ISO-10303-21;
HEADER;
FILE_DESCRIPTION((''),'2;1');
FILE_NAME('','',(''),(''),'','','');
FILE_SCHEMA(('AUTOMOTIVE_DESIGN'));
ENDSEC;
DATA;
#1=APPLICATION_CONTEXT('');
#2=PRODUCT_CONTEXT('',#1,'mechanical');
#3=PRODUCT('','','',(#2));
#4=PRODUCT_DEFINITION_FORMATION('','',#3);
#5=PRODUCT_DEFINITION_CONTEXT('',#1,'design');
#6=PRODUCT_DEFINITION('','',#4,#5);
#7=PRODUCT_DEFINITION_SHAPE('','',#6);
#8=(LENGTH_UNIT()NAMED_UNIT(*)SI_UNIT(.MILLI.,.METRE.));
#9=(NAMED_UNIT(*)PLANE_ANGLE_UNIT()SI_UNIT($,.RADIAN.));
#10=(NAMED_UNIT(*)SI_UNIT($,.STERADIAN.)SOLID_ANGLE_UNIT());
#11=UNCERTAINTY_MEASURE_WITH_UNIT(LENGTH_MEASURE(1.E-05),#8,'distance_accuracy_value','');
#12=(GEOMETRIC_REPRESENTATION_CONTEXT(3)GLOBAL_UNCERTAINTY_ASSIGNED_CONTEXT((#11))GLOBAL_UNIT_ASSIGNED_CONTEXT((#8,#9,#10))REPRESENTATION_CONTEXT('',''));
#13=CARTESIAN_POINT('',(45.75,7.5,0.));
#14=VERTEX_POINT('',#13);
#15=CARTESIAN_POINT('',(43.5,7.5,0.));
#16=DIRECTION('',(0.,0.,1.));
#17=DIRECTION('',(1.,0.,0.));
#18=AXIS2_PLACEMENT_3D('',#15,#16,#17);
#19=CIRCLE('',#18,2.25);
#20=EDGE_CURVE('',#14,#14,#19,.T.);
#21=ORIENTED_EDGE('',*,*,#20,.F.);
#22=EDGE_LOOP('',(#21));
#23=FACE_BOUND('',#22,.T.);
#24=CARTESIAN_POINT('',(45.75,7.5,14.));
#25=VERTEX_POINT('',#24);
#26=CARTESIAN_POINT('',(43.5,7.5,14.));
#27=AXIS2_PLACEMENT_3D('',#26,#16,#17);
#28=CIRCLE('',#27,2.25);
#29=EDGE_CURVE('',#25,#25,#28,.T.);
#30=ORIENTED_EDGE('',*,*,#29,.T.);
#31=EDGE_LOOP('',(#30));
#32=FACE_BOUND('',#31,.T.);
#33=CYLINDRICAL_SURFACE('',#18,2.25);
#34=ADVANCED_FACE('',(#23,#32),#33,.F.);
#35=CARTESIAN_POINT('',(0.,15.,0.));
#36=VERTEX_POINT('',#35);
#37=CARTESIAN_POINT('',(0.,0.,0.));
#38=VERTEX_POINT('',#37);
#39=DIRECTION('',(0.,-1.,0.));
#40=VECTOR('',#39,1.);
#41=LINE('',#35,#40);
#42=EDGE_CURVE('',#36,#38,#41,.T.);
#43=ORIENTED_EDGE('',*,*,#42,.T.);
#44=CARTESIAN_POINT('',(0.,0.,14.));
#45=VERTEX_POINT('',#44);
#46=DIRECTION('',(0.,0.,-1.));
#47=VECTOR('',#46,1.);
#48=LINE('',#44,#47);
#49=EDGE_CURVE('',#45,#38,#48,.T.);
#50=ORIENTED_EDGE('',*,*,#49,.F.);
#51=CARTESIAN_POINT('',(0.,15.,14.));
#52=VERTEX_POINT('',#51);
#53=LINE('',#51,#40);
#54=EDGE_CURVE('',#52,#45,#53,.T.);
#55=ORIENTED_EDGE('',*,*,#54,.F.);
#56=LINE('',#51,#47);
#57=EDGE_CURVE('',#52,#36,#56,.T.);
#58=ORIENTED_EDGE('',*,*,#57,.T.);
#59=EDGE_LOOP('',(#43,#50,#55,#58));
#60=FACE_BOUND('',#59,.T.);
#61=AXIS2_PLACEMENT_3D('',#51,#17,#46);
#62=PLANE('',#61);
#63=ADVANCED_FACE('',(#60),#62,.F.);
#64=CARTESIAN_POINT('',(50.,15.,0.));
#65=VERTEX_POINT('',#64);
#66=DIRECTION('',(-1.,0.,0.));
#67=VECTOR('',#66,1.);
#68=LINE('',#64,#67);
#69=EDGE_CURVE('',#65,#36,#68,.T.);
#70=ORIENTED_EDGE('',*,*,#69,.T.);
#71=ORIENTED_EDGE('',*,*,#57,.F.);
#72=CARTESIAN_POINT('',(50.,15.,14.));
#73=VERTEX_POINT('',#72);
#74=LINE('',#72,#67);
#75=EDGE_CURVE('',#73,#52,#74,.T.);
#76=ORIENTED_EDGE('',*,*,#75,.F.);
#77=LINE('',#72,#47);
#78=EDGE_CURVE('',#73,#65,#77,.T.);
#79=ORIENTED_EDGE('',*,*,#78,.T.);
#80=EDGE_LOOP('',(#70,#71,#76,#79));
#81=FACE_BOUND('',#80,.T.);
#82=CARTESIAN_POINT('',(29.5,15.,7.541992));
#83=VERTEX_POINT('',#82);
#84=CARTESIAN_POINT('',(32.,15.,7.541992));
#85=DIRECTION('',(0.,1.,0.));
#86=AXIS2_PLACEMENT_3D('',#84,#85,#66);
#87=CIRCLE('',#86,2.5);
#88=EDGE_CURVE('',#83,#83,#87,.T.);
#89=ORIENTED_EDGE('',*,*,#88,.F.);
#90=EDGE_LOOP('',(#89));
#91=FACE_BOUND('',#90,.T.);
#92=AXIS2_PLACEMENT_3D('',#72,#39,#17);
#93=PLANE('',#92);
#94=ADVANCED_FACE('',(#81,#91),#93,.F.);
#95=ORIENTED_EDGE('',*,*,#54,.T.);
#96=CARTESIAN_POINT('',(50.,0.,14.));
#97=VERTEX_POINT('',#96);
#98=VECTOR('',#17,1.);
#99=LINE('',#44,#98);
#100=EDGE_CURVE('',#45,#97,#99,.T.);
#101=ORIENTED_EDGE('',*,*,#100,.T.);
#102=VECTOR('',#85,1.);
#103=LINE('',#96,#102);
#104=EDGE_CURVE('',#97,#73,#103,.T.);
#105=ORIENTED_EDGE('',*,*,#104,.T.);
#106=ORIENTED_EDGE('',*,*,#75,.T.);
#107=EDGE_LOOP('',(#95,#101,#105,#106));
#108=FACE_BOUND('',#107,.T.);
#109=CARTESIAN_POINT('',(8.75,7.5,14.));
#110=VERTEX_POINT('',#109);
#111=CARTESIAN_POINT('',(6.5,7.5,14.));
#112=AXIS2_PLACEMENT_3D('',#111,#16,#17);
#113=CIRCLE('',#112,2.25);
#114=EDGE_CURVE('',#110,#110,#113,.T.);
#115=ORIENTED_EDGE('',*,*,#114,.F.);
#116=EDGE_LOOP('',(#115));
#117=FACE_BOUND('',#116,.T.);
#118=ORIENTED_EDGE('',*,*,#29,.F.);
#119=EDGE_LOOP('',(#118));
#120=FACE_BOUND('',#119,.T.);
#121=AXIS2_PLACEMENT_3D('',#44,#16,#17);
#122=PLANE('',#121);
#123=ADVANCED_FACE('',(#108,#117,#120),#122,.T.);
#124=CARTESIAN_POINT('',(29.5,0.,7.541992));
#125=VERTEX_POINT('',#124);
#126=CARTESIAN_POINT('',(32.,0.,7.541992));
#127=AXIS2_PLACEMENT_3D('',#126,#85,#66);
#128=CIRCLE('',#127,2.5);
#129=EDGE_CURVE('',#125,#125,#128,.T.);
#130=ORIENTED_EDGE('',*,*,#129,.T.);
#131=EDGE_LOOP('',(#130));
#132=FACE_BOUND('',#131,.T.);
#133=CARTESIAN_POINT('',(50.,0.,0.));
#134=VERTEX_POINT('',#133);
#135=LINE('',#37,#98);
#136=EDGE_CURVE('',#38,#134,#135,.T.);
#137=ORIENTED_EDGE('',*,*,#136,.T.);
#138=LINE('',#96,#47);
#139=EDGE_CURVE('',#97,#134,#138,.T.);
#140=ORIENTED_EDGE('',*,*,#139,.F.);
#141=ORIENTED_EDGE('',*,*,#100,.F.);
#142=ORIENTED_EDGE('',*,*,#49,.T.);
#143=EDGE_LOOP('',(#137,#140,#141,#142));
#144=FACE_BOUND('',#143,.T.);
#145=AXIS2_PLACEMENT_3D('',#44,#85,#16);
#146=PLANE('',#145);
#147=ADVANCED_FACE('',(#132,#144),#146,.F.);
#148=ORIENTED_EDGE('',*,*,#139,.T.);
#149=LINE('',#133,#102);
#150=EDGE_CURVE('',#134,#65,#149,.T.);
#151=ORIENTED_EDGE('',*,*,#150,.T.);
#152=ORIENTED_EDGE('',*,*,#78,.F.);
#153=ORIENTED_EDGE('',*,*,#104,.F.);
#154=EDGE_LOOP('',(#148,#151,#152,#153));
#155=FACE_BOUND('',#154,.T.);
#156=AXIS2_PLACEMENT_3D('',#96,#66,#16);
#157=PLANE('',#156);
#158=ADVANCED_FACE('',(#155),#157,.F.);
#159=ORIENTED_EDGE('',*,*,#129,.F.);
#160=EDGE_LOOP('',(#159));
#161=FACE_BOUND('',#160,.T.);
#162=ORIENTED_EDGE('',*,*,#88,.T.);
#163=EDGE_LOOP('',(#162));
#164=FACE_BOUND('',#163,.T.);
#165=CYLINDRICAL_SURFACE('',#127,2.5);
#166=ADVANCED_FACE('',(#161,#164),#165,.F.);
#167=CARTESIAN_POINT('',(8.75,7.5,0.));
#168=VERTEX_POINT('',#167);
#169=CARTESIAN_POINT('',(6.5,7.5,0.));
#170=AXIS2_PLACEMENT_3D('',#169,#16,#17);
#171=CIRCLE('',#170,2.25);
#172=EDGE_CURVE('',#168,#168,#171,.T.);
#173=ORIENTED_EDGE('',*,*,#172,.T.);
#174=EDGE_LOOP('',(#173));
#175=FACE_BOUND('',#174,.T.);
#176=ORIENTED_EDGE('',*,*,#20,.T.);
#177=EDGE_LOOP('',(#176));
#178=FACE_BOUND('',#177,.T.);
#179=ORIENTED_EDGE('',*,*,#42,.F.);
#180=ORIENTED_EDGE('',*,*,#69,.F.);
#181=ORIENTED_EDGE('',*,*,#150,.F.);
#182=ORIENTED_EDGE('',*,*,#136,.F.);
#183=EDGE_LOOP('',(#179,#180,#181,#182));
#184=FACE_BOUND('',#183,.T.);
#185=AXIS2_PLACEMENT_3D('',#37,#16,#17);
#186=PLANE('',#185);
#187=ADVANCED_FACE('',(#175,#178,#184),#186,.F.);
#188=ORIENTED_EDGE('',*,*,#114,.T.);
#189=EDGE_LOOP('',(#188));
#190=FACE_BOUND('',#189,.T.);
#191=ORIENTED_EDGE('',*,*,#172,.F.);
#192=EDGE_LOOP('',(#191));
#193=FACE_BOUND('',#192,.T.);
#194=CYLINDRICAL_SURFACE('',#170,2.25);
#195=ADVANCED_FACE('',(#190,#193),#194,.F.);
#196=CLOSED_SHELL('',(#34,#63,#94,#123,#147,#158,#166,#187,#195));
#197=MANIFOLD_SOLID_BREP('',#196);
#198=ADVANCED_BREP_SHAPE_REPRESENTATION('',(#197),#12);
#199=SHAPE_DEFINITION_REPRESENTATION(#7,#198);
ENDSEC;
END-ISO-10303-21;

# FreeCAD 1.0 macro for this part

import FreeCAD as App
import Part
import Sketcher

V = App.Vector
Q = App.Units.Quantity

doc = App.newDocument("Part")
body = doc.addObject("PartDesign::Body", "Body")

sketch1 = body.newObject("Sketcher::SketchObject", "Sketch")
sketch1.AttachmentSupport = (doc.getObject("XY_Plane"), [""])
sketch1.MapMode = "FlatFace"
sketch1.addGeometry(Part.LineSegment(V(0, 15, 0), V(0, 0, 0)), False)
sketch1.addGeometry(Part.LineSegment(V(0, 0, 0), V(50, 0, 0)), False)
sketch1.addGeometry(Part.LineSegment(V(50, 0, 0), V(50, 15, 0)), False)
sketch1.addGeometry(Part.LineSegment(V(50, 15, 0), V(0, 15, 0)), False)
sketch1.addConstraint(Sketcher.Constraint("Coincident", 0, 2, 1, 1))
sketch1.addConstraint(Sketcher.Constraint("Coincident", 1, 2, 2, 1))
sketch1.addConstraint(Sketcher.Constraint("Coincident", 2, 2, 3, 1))
sketch1.addConstraint(Sketcher.Constraint("Coincident", 3, 2, 0, 1))
sketch1.addConstraint(Sketcher.Constraint("Vertical", 0))
sketch1.addConstraint(Sketcher.Constraint("Horizontal", 1))
sketch1.addConstraint(Sketcher.Constraint("Vertical", 2))
sketch1.addConstraint(Sketcher.Constraint("Horizontal", 3))
sketch1.addConstraint(Sketcher.Constraint("Coincident", 0, 2, -1, 1))
sketch1.addConstraint(Sketcher.Constraint("DistanceX", 1, 1, 1, 2, Q("50 mm")))
sketch1.addConstraint(Sketcher.Constraint("DistanceY", 0, 2, 0, 1, Q("15 mm")))
pad1 = body.newObject("PartDesign::Pad", "Pad")
pad1.Profile = sketch1
pad1.Length = 14

sketch2 = body.newObject("Sketcher::SketchObject", "Sketch001")
sketch2.AttachmentSupport = (doc.getObject("XZ_Plane"), [""])
sketch2.MapMode = "FlatFace"
sketch2.AttachmentOffset = App.Placement(V(0, 0, -15), App.Rotation())
sketch2.addGeometry(Part.Circle(V(32, 7.541992, 0), V(0, 0, 1), 2.5), False)
sketch2.addConstraint(Sketcher.Constraint("Diameter", 0, Q("5 mm")))
sketch2.addConstraint(Sketcher.Constraint("DistanceX", -1, 1, 0, 3, Q("32 mm")))
sketch2.addConstraint(Sketcher.Constraint("DistanceY", -1, 1, 0, 3, Q("7.541992 mm")))
pocket1 = body.newObject("PartDesign::Pocket", "Pocket")
pocket1.Profile = sketch2
pocket1.Type = "ThroughAll"
pocket1.Reversed = True

sketch3 = body.newObject("Sketcher::SketchObject", "Sketch002")
sketch3.AttachmentSupport = (doc.getObject("XY_Plane"), [""])
sketch3.MapMode = "FlatFace"
sketch3.AttachmentOffset = App.Placement(V(0, 0, 14), App.Rotation())
sketch3.addGeometry(Part.Circle(V(6.5, 7.5, 0), V(0, 0, 1), 2.25), False)
sketch3.addGeometry(Part.Circle(V(43.5, 7.5, 0), V(0, 0, 1), 2.25), False)
sketch3.addConstraint(Sketcher.Constraint("Equal", 0, 1))
sketch3.addConstraint(Sketcher.Constraint("Horizontal", 0, 3, 1, 3))
sketch3.addConstraint(Sketcher.Constraint("Diameter", 0, Q("4.5 mm")))
sketch3.addConstraint(Sketcher.Constraint("DistanceX", 0, 3, 1, 3, Q("37 mm")))
sketch3.addConstraint(Sketcher.Constraint("DistanceX", -1, 1, 0, 3, Q("6.5 mm")))
sketch3.addConstraint(Sketcher.Constraint("DistanceY", -1, 1, 0, 3, Q("7.5 mm")))
pocket2 = body.newObject("PartDesign::Pocket", "Pocket001")
pocket2.Profile = sketch3
pocket2.Type = "ThroughAll"

doc.recompute()
